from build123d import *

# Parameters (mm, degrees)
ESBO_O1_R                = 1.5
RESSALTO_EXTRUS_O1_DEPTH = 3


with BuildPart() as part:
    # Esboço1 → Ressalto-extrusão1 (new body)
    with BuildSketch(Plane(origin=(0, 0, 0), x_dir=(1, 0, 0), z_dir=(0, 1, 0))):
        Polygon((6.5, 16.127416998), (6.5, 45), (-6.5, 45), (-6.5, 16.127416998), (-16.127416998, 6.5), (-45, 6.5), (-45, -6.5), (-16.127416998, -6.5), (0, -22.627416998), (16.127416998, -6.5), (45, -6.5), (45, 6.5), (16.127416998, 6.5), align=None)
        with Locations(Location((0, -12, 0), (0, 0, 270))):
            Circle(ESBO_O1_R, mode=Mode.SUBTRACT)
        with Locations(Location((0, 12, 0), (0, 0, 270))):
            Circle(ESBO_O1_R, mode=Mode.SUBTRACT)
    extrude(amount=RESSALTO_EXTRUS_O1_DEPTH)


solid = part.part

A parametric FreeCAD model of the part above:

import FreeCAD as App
import Part
import Sketcher
Q = App.Units.Quantity


def add_polygon(sketch, points):
    """Adds a closed chain of lines whose ends are joined by coincident constraints."""
    first, n = sketch.GeometryCount, len(points)
    for a, b in zip(points, points[1:] + points[:1]):
        sketch.addGeometry(Part.LineSegment(App.Vector(*a, 0), App.Vector(*b, 0)), False)
    for i in range(n):
        sketch.addConstraint(Sketcher.Constraint("Coincident", first + i, 2, first + (i + 1) % n, 1))

doc = App.newDocument("Part")
body = doc.addObject("PartDesign::Body", "Body")

sketch1 = body.newObject("Sketcher::SketchObject", "Sketch")
sketch1.AttachmentSupport = (doc.getObject("XZ_Plane"), [""])
sketch1.MapMode = "FlatFace"
add_polygon(sketch1, [(6.5, -16.1), (6.5, -45), (-6.5, -45), (-6.5, -16.1), (-16.1, -6.5), (-45, -6.5), (-45, 6.5), (-16.1, 6.5), (0, 22.6), (16.1, 6.5), (45, 6.5), (45, -6.5), (16.1, -6.5)])
sketch1.addGeometry(Part.Circle(App.Vector(0, 12, 0), App.Vector(0, 0, 1), 1.5), False)
sketch1.addGeometry(Part.Circle(App.Vector(0, -12, 0), App.Vector(0, 0, 1), 1.5), False)
sketch1.addConstraint([
    Sketcher.Constraint("Vertical", 0),
    Sketcher.Constraint("Horizontal", 1),
    Sketcher.Constraint("Vertical", 2),
    Sketcher.Constraint("Horizontal", 4),
    Sketcher.Constraint("Vertical", 5),
    Sketcher.Constraint("Horizontal", 6),
    Sketcher.Constraint("Horizontal", 9),
    Sketcher.Constraint("Vertical", 10),
    Sketcher.Constraint("Horizontal", 11),
    Sketcher.Constraint("Equal", 13, 14),
    Sketcher.Constraint("Symmetric", 13, 3, 14, 3, -1, 1),
    Sketcher.Constraint("Symmetric", 3, 2, 8, 2, -1, 1),
    Sketcher.Constraint("Symmetric", 5, 2, 10, 2, -1, 1),
    Sketcher.Constraint("Symmetric", 6, 2, 8, 2, -2),
    Sketcher.Constraint("Symmetric", 2, 2, 12, 2, -2),
    Sketcher.Constraint("PointOnObject", 13, 3, -2),
    Sketcher.Constraint("PointOnObject", 7, 2, -2),
    Sketcher.Constraint("Perpendicular", 3, 7),
    Sketcher.Constraint("Perpendicular", 7, 8),
    Sketcher.Constraint("Perpendicular", 8, 12),
    Sketcher.Constraint("Equal", 11, 0),
    Sketcher.Constraint("Equal", 1, 5),
    Sketcher.Constraint("Diameter", 13, Q("3 mm")),
    Sketcher.Constraint("DistanceX", 1, 2, 1, 1, Q("13 mm")),
    Sketcher.Constraint("DistanceY", -1, 1, 13, 3, Q("12 mm")),
    Sketcher.Constraint("DistanceY", 0, 2, -1, 1, Q("45 mm")),
    Sketcher.Constraint("Distance", 7, Q("22.807612 mm")),
])
pad1 = body.newObject("PartDesign::Pad", "Pad")
pad1.Profile = sketch1
pad1.Length = 3
pad1.Reversed = True

doc.recompute()
